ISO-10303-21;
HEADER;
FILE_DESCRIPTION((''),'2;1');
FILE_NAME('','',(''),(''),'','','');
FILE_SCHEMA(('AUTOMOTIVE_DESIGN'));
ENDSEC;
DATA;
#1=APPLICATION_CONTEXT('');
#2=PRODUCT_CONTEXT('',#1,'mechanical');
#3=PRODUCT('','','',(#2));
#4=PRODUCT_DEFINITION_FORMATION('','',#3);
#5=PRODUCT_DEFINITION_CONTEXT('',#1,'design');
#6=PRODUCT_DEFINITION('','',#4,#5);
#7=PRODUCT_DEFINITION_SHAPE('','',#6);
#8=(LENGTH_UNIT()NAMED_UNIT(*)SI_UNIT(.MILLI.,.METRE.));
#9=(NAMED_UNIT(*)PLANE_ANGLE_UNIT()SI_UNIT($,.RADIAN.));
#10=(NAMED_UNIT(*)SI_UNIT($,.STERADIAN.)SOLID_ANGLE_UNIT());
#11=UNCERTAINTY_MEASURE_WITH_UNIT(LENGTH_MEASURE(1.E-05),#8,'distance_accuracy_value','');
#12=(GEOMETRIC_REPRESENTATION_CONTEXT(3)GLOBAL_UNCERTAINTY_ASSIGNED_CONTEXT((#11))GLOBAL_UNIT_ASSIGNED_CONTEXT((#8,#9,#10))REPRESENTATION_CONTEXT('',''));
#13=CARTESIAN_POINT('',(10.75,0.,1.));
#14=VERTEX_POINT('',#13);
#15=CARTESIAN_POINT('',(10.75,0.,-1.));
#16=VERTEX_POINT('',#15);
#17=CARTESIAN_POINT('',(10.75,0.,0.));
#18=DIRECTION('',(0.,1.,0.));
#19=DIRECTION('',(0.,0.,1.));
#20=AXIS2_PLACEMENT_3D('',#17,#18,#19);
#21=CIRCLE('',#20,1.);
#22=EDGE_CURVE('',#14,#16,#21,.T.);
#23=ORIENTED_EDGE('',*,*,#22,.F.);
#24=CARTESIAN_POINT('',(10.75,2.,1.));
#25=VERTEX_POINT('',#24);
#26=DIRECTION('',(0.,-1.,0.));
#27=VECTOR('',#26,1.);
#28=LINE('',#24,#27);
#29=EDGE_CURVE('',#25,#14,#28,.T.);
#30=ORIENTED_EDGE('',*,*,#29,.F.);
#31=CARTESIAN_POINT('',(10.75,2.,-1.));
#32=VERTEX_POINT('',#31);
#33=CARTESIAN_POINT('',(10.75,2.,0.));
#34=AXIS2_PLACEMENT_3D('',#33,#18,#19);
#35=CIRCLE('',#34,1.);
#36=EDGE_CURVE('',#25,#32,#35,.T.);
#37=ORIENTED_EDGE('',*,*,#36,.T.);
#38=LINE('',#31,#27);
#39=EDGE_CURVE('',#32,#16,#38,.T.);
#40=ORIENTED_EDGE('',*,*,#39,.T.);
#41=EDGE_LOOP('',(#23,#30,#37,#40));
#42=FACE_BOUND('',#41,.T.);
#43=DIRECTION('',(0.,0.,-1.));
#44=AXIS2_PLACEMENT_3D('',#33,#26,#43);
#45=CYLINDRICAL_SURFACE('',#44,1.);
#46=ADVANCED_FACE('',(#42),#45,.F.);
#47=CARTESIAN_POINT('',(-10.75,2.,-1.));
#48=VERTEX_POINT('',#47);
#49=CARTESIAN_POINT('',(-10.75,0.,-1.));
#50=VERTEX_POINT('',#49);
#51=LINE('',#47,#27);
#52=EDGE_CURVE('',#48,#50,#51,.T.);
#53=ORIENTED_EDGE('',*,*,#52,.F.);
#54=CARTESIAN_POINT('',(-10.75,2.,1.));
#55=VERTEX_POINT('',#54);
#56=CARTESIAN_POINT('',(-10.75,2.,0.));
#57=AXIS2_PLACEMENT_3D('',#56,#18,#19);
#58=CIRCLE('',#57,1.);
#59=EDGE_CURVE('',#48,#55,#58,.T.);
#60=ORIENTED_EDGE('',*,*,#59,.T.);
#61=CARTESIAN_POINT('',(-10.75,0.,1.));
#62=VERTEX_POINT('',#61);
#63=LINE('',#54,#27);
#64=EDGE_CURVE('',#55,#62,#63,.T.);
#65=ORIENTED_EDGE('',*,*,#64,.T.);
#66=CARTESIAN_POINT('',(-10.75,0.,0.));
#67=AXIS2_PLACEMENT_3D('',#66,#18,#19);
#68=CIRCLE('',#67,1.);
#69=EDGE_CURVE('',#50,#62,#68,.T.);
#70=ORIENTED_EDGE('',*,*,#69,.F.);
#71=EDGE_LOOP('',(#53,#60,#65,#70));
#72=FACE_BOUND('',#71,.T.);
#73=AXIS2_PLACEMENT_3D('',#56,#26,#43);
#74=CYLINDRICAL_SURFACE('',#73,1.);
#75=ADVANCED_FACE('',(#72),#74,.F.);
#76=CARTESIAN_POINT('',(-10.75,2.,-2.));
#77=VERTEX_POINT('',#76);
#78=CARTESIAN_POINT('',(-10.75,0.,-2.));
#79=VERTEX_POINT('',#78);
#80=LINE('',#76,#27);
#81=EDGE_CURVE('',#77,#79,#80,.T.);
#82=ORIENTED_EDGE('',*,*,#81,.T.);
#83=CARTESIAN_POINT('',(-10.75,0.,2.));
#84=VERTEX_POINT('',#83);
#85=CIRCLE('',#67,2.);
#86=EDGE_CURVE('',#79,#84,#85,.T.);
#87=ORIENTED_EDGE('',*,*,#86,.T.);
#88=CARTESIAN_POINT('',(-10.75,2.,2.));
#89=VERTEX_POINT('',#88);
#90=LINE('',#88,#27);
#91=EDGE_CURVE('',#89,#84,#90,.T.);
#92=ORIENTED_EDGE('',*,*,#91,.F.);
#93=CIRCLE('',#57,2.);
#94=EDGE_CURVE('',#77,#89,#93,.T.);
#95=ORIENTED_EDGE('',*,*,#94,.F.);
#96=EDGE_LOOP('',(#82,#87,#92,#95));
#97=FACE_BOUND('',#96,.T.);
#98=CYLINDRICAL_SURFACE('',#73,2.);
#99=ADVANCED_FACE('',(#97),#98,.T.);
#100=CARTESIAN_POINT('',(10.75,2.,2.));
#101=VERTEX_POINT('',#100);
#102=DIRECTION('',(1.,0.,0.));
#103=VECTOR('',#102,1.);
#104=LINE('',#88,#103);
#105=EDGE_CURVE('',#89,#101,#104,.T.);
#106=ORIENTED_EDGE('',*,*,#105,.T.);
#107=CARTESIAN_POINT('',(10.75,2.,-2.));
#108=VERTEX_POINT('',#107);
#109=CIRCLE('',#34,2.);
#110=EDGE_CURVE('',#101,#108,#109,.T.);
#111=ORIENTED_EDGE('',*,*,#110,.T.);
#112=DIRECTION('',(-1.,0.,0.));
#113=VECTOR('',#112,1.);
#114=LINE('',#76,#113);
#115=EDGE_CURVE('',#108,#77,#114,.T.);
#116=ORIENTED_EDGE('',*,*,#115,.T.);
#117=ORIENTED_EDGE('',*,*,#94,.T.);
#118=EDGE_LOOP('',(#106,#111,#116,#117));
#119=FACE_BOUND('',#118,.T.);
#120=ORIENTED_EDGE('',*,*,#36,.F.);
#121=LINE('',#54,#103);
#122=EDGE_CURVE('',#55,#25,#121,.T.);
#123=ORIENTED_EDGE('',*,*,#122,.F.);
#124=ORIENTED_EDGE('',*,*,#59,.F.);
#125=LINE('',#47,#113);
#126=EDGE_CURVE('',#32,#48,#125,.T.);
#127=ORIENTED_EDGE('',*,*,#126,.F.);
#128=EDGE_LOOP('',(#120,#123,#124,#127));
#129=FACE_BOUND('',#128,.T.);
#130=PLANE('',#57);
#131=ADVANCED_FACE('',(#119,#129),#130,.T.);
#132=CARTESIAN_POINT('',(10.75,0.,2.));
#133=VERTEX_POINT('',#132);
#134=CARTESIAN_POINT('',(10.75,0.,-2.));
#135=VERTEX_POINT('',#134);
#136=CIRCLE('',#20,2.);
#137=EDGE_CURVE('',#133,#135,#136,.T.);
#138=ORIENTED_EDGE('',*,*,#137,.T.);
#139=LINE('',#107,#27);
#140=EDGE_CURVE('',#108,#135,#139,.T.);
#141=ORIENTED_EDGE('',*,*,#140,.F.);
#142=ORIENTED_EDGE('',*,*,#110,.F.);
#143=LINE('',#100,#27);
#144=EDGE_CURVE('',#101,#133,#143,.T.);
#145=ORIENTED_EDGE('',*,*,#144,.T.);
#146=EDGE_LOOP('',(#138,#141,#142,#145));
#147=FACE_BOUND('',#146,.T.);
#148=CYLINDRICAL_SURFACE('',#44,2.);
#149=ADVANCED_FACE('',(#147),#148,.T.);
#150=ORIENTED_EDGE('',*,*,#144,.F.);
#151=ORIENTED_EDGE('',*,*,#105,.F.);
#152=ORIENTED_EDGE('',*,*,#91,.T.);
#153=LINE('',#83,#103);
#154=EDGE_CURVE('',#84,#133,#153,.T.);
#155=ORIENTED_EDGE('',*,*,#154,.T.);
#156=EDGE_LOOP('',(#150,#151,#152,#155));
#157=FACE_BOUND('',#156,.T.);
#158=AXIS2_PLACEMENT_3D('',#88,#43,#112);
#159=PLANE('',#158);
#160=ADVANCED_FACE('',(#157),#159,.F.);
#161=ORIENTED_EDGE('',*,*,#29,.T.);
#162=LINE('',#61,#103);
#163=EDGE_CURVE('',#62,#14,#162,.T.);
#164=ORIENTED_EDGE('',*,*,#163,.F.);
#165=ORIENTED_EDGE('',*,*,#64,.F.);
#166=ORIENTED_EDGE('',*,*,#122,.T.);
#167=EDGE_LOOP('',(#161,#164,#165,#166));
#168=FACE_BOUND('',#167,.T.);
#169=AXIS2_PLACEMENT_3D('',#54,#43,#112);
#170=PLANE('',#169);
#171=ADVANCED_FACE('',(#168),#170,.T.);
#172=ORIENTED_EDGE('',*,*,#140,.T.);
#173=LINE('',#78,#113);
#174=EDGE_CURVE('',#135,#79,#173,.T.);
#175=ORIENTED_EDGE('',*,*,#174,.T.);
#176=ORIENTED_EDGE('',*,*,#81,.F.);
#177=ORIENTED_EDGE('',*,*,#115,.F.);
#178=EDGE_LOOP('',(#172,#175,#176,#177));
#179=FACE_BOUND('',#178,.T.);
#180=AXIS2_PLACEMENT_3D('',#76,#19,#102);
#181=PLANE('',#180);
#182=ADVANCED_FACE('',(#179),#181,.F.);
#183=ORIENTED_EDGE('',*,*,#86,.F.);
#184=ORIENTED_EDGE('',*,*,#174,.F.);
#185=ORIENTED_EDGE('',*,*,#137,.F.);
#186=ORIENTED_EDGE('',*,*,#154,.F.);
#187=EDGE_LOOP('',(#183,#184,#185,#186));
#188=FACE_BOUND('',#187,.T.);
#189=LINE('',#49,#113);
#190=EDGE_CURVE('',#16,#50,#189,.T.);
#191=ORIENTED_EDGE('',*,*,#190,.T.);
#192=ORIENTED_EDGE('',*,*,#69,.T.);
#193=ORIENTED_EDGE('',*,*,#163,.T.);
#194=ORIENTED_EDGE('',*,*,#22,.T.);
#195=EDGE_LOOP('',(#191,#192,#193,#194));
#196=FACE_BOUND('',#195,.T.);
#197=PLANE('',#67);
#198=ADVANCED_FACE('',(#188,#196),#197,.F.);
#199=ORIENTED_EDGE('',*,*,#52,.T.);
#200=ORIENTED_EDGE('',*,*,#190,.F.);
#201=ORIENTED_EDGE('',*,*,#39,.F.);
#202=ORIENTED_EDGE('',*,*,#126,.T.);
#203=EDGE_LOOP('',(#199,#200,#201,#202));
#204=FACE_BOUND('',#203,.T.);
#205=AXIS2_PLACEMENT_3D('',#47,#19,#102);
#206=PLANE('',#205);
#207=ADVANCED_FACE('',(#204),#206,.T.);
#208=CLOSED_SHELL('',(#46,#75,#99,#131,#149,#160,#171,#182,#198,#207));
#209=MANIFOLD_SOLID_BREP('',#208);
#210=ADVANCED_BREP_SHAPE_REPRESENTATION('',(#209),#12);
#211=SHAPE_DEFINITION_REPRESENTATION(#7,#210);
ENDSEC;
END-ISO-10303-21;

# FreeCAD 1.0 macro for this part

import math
import FreeCAD as App
import Part
import Sketcher

doc = App.newDocument("Part")
body = doc.addObject("PartDesign::Body", "Body")

# Sketch on XZ plane
sketch1 = doc.addObject("Sketcher::SketchObject", "Sketch")
body.addObject(sketch1)
sketch1.AttachmentSupport = (doc.XZ_Plane, [""])
sketch1.MapMode = "FlatFace"
sketch1.addGeometry(Part.LineSegment(App.Vector(10.8, -2, 0), App.Vector(-10.8, -2, 0)), False)
sketch1.addGeometry(Part.ArcOfCircle(Part.Circle(App.Vector(-10.8, 0, 0), App.Vector(0, 0, 1), 2), math.radians(90), math.radians(270)), False)
sketch1.addGeometry(Part.LineSegment(App.Vector(-10.8, 2, 0), App.Vector(10.8, 2, 0)), False)
sketch1.addGeometry(Part.ArcOfCircle(Part.Circle(App.Vector(10.8, 0, 0), App.Vector(0, 0, 1), 2), math.radians(-90), math.radians(90)), False)
sketch1.addGeometry(Part.LineSegment(App.Vector(-10.8, -1, 0), App.Vector(10.8, -1, 0)), False)
sketch1.addGeometry(Part.ArcOfCircle(Part.Circle(App.Vector(10.8, 0, 0), App.Vector(0, 0, 1), 1), math.radians(-90), math.radians(90)), False)
sketch1.addGeometry(Part.LineSegment(App.Vector(10.8, 1, 0), App.Vector(-10.8, 1, 0)), False)
sketch1.addGeometry(Part.ArcOfCircle(Part.Circle(App.Vector(-10.8, 0, 0), App.Vector(0, 0, 1), 1), math.radians(90), math.radians(270)), False)
sketch1.addConstraint(Sketcher.Constraint("Tangent", 0, 2, 1, 2))
sketch1.addConstraint(Sketcher.Constraint("Tangent", 1, 1, 2, 1))
sketch1.addConstraint(Sketcher.Constraint("Tangent", 2, 2, 3, 2))
sketch1.addConstraint(Sketcher.Constraint("Tangent", 3, 1, 0, 1))
sketch1.addConstraint(Sketcher.Constraint("Tangent", 4, 2, 5, 1))
sketch1.addConstraint(Sketcher.Constraint("Tangent", 5, 2, 6, 1))
sketch1.addConstraint(Sketcher.Constraint("Tangent", 6, 2, 7, 1))
sketch1.addConstraint(Sketcher.Constraint("Tangent", 7, 2, 4, 1))
sketch1.addConstraint(Sketcher.Constraint("Horizontal", 0))
sketch1.addConstraint(Sketcher.Constraint("Horizontal", 2))
sketch1.addConstraint(Sketcher.Constraint("Horizontal", 4))
sketch1.addConstraint(Sketcher.Constraint("Horizontal", 6))
sketch1.addConstraint(Sketcher.Constraint("Coincident", 5, 3, 3, 3))
sketch1.addConstraint(Sketcher.Constraint("Symmetric", 1, 3, 3, 3, -1, 1))
sketch1.addConstraint(Sketcher.Constraint("Vertical", 7, 3, 0, 2))
sketch1.addConstraint(Sketcher.Constraint("Radius", 1, 2.0))
sketch1.addConstraint(Sketcher.Constraint("Radius", 5, 1.0))
sketch1.addConstraint(Sketcher.Constraint("DistanceX", 0, 2, 0, 1, 21.5))
pad1 = doc.addObject("PartDesign::Pad", "Pad")
body.addObject(pad1)
pad1.Profile = sketch1
pad1.Length = 2
pad1.Reversed = True

doc.recompute()
